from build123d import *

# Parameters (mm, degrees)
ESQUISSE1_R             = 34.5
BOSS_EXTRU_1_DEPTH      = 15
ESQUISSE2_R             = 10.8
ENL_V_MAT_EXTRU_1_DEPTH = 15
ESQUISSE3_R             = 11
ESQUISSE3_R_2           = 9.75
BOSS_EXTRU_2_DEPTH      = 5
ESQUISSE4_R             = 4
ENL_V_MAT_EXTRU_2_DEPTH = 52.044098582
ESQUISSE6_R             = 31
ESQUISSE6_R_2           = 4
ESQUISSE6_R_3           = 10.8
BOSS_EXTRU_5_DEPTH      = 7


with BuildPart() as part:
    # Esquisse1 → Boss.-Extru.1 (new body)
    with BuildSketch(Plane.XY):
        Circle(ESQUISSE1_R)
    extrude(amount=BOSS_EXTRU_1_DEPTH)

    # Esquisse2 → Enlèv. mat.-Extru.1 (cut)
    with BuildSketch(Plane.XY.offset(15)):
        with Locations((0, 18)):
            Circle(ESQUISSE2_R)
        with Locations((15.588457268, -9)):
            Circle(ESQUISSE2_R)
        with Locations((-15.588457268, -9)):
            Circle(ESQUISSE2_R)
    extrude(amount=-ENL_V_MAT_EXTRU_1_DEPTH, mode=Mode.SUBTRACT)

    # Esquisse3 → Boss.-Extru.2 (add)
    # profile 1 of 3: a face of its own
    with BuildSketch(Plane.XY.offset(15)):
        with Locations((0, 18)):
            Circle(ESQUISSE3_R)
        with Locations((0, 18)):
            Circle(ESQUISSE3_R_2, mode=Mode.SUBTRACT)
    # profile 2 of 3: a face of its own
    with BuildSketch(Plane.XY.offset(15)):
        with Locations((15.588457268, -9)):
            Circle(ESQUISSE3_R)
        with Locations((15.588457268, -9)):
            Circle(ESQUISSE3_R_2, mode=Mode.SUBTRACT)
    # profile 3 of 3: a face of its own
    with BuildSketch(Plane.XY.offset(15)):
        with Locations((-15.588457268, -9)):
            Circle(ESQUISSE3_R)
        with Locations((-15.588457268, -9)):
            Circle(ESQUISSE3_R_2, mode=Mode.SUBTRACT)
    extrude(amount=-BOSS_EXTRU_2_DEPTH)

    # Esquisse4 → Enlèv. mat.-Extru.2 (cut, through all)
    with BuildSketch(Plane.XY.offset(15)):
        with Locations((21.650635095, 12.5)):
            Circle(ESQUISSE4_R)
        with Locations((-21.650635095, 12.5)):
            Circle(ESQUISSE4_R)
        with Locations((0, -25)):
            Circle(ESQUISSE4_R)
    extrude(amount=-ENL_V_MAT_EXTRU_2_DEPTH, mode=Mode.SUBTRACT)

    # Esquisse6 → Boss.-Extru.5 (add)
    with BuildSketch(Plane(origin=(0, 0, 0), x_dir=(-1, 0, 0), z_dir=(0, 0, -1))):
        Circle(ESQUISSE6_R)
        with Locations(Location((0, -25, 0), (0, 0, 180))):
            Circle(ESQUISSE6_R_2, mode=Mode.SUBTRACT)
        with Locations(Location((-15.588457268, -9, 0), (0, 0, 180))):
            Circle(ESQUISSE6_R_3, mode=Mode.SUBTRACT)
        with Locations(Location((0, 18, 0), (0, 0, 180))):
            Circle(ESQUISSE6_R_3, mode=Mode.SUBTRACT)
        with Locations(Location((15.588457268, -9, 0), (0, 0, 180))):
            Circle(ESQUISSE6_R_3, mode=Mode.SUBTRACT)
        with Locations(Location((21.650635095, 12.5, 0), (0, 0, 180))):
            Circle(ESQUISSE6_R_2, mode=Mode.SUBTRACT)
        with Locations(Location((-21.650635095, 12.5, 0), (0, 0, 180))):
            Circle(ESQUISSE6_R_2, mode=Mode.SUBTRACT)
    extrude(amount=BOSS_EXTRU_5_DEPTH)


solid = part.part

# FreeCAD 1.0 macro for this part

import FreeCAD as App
import Part
import Sketcher

V = App.Vector
Q = App.Units.Quantity

doc = App.newDocument("Part")
body = doc.addObject("PartDesign::Body", "Body")

sketch1 = body.newObject("Sketcher::SketchObject", "Sketch")
sketch1.AttachmentSupport = (doc.getObject("XY_Plane"), [""])
sketch1.MapMode = "FlatFace"
sketch1.addGeometry(Part.Circle(V(0, 0, 0), V(0, 0, 1), 34), False)
sketch1.addConstraint([
    Sketcher.Constraint("Coincident", 0, 3, -1, 1),
    Sketcher.Constraint("Diameter", 0, Q("69 mm")),
])
pad1 = body.newObject("PartDesign::Pad", "Pad")
pad1.Profile = sketch1
pad1.Length = 15

sketch2 = body.newObject("Sketcher::SketchObject", "Sketch001")
sketch2.AttachmentSupport = (doc.getObject("XY_Plane"), [""])
sketch2.MapMode = "FlatFace"
sketch2.AttachmentOffset = App.Placement(V(0, 0, 15), App.Rotation())
sketch2.addGeometry([
    Part.Circle(V(0, 18, 0), V(0, 0, 1), 11),
    Part.Circle(V(16, -9, 0), V(0, 0, 1), 11),
    Part.Circle(V(-16, -9, 0), V(0, 0, 1), 11),
], False)
sketch2.addConstraint([
    Sketcher.Constraint("Equal", 0, 1),
    Sketcher.Constraint("Equal", 1, 2),
    Sketcher.Constraint("Symmetric", 1, 3, 2, 3, -2),
    Sketcher.Constraint("PointOnObject", 0, 3, -2),
    Sketcher.Constraint("Diameter", 0, Q("21.6 mm")),
    Sketcher.Constraint("DistanceY", -1, 1, 0, 3, Q("18 mm")),
    Sketcher.Constraint("DistanceY", 1, 3, -1, 1, Q("9 mm")),
    Sketcher.Constraint("DistanceX", -1, 1, 1, 3, Q("15.588457 mm")),
])
pocket1 = body.newObject("PartDesign::Pocket", "Pocket")
pocket1.Profile = sketch2
pocket1.Length = 15

sketch3 = body.newObject("Sketcher::SketchObject", "Sketch002")
sketch3.AttachmentSupport = (doc.getObject("XY_Plane"), [""])
sketch3.MapMode = "FlatFace"
sketch3.AttachmentOffset = App.Placement(V(0, 0, 15), App.Rotation())
sketch3.addGeometry([
    Part.Circle(V(0, 18, 0), V(0, 0, 1), 11),
    Part.Circle(V(0, 18, 0), V(0, 0, 1), 10),
    Part.Circle(V(16, -9, 0), V(0, 0, 1), 11),
    Part.Circle(V(16, -9, 0), V(0, 0, 1), 10),
    Part.Circle(V(-16, -9, 0), V(0, 0, 1), 11),
    Part.Circle(V(-16, -9, 0), V(0, 0, 1), 10),
], False)
sketch3.addConstraint([
    Sketcher.Constraint("Coincident", 1, 3, 0, 3),
    Sketcher.Constraint("Coincident", 3, 3, 2, 3),
    Sketcher.Constraint("Coincident", 5, 3, 4, 3),
    Sketcher.Constraint("Equal", 0, 2),
    Sketcher.Constraint("Equal", 1, 3),
    Sketcher.Constraint("Equal", 2, 4),
    Sketcher.Constraint("Equal", 3, 5),
    Sketcher.Constraint("Symmetric", 2, 3, 4, 3, -2),
    Sketcher.Constraint("PointOnObject", 0, 3, -2),
    Sketcher.Constraint("Diameter", 0, Q("22 mm")),
    Sketcher.Constraint("Diameter", 1, Q("19.5 mm")),
    Sketcher.Constraint("DistanceY", -1, 1, 0, 3, Q("18 mm")),
    Sketcher.Constraint("DistanceY", 2, 3, -1, 1, Q("9 mm")),
    Sketcher.Constraint("DistanceX", -1, 1, 2, 3, Q("15.588457 mm")),
])
pad2 = body.newObject("PartDesign::Pad", "Pad001")
pad2.Profile = sketch3
pad2.Length = 5
pad2.Reversed = True

sketch4 = body.newObject("Sketcher::SketchObject", "Sketch003")
sketch4.AttachmentSupport = (doc.getObject("XY_Plane"), [""])
sketch4.MapMode = "FlatFace"
sketch4.AttachmentOffset = App.Placement(V(0, 0, 15), App.Rotation())
sketch4.addGeometry([
    Part.Circle(V(21.7, 12.5, 0), V(0, 0, 1), 4),
    Part.Circle(V(-21.7, 12.5, 0), V(0, 0, 1), 4),
    Part.Circle(V(0, -25, 0), V(0, 0, 1), 4),
], False)
sketch4.addConstraint([
    Sketcher.Constraint("Equal", 0, 1),
    Sketcher.Constraint("Equal", 1, 2),
    Sketcher.Constraint("Symmetric", 0, 3, 1, 3, -2),
    Sketcher.Constraint("PointOnObject", 2, 3, -2),
    Sketcher.Constraint("Diameter", 0, Q("8 mm")),
    Sketcher.Constraint("DistanceY", 2, 3, -1, 1, Q("25 mm")),
    Sketcher.Constraint("DistanceY", -1, 1, 0, 3, Q("12.5 mm")),
    Sketcher.Constraint("DistanceX", 1, 3, 0, 3, Q("43.30127 mm")),
])
pocket2 = body.newObject("PartDesign::Pocket", "Pocket001")
pocket2.Profile = sketch4
pocket2.Type = "ThroughAll"

sketch5 = body.newObject("Sketcher::SketchObject", "Sketch004")
sketch5.AttachmentSupport = (doc.getObject("XY_Plane"), [""])
sketch5.MapMode = "FlatFace"
sketch5.addGeometry([
    Part.Circle(V(0, 0, 0), V(0, 0, 1), 31),
    Part.Circle(V(0, -25, 0), V(0, 0, 1), 4),
    Part.Circle(V(15.6, -9, 0), V(0, 0, 1), 10.8),
    Part.Circle(V(-15.6, -9, 0), V(0, 0, 1), 10.8),
    Part.Circle(V(21.7, 12.5, 0), V(0, 0, 1), 4),
    Part.Circle(V(0, 18, 0), V(0, 0, 1), 10.8),
    Part.Circle(V(-21.7, 12.5, 0), V(0, 0, 1), 4),
], False)
sketch5.addConstraint([
    Sketcher.Constraint("Coincident", 0, 3, -1, 1),
    Sketcher.Constraint("Equal", 2, 3),
    Sketcher.Constraint("Equal", 1, 4),
    Sketcher.Constraint("Equal", 3, 5),
    Sketcher.Constraint("Equal", 4, 6),
    Sketcher.Constraint("Symmetric", 2, 3, 3, 3, -2),
    Sketcher.Constraint("Symmetric", 4, 3, 6, 3, -2),
    Sketcher.Constraint("PointOnObject", 1, 3, -2),
    Sketcher.Constraint("PointOnObject", 5, 3, -2),
    Sketcher.Constraint("Diameter", 0, Q("62 mm")),
    Sketcher.Constraint("Diameter", 1, Q("8 mm")),
    Sketcher.Constraint("Diameter", 2, Q("21.6 mm")),
    Sketcher.Constraint("DistanceY", 1, 3, -1, 1, Q("25 mm")),
    Sketcher.Constraint("DistanceY", 2, 3, -1, 1, Q("9 mm")),
    Sketcher.Constraint("DistanceY", -1, 1, 5, 3, Q("18 mm")),
    Sketcher.Constraint("DistanceY", -1, 1, 4, 3, Q("12.5 mm")),
    Sketcher.Constraint("DistanceX", -1, 1, 2, 3, Q("15.588457 mm")),
    Sketcher.Constraint("DistanceX", -1, 1, 4, 3, Q("21.650635 mm")),
])
pad3 = body.newObject("PartDesign::Pad", "Pad002")
pad3.Profile = sketch5
pad3.Length = 7
pad3.Reversed = True

doc.recompute()
